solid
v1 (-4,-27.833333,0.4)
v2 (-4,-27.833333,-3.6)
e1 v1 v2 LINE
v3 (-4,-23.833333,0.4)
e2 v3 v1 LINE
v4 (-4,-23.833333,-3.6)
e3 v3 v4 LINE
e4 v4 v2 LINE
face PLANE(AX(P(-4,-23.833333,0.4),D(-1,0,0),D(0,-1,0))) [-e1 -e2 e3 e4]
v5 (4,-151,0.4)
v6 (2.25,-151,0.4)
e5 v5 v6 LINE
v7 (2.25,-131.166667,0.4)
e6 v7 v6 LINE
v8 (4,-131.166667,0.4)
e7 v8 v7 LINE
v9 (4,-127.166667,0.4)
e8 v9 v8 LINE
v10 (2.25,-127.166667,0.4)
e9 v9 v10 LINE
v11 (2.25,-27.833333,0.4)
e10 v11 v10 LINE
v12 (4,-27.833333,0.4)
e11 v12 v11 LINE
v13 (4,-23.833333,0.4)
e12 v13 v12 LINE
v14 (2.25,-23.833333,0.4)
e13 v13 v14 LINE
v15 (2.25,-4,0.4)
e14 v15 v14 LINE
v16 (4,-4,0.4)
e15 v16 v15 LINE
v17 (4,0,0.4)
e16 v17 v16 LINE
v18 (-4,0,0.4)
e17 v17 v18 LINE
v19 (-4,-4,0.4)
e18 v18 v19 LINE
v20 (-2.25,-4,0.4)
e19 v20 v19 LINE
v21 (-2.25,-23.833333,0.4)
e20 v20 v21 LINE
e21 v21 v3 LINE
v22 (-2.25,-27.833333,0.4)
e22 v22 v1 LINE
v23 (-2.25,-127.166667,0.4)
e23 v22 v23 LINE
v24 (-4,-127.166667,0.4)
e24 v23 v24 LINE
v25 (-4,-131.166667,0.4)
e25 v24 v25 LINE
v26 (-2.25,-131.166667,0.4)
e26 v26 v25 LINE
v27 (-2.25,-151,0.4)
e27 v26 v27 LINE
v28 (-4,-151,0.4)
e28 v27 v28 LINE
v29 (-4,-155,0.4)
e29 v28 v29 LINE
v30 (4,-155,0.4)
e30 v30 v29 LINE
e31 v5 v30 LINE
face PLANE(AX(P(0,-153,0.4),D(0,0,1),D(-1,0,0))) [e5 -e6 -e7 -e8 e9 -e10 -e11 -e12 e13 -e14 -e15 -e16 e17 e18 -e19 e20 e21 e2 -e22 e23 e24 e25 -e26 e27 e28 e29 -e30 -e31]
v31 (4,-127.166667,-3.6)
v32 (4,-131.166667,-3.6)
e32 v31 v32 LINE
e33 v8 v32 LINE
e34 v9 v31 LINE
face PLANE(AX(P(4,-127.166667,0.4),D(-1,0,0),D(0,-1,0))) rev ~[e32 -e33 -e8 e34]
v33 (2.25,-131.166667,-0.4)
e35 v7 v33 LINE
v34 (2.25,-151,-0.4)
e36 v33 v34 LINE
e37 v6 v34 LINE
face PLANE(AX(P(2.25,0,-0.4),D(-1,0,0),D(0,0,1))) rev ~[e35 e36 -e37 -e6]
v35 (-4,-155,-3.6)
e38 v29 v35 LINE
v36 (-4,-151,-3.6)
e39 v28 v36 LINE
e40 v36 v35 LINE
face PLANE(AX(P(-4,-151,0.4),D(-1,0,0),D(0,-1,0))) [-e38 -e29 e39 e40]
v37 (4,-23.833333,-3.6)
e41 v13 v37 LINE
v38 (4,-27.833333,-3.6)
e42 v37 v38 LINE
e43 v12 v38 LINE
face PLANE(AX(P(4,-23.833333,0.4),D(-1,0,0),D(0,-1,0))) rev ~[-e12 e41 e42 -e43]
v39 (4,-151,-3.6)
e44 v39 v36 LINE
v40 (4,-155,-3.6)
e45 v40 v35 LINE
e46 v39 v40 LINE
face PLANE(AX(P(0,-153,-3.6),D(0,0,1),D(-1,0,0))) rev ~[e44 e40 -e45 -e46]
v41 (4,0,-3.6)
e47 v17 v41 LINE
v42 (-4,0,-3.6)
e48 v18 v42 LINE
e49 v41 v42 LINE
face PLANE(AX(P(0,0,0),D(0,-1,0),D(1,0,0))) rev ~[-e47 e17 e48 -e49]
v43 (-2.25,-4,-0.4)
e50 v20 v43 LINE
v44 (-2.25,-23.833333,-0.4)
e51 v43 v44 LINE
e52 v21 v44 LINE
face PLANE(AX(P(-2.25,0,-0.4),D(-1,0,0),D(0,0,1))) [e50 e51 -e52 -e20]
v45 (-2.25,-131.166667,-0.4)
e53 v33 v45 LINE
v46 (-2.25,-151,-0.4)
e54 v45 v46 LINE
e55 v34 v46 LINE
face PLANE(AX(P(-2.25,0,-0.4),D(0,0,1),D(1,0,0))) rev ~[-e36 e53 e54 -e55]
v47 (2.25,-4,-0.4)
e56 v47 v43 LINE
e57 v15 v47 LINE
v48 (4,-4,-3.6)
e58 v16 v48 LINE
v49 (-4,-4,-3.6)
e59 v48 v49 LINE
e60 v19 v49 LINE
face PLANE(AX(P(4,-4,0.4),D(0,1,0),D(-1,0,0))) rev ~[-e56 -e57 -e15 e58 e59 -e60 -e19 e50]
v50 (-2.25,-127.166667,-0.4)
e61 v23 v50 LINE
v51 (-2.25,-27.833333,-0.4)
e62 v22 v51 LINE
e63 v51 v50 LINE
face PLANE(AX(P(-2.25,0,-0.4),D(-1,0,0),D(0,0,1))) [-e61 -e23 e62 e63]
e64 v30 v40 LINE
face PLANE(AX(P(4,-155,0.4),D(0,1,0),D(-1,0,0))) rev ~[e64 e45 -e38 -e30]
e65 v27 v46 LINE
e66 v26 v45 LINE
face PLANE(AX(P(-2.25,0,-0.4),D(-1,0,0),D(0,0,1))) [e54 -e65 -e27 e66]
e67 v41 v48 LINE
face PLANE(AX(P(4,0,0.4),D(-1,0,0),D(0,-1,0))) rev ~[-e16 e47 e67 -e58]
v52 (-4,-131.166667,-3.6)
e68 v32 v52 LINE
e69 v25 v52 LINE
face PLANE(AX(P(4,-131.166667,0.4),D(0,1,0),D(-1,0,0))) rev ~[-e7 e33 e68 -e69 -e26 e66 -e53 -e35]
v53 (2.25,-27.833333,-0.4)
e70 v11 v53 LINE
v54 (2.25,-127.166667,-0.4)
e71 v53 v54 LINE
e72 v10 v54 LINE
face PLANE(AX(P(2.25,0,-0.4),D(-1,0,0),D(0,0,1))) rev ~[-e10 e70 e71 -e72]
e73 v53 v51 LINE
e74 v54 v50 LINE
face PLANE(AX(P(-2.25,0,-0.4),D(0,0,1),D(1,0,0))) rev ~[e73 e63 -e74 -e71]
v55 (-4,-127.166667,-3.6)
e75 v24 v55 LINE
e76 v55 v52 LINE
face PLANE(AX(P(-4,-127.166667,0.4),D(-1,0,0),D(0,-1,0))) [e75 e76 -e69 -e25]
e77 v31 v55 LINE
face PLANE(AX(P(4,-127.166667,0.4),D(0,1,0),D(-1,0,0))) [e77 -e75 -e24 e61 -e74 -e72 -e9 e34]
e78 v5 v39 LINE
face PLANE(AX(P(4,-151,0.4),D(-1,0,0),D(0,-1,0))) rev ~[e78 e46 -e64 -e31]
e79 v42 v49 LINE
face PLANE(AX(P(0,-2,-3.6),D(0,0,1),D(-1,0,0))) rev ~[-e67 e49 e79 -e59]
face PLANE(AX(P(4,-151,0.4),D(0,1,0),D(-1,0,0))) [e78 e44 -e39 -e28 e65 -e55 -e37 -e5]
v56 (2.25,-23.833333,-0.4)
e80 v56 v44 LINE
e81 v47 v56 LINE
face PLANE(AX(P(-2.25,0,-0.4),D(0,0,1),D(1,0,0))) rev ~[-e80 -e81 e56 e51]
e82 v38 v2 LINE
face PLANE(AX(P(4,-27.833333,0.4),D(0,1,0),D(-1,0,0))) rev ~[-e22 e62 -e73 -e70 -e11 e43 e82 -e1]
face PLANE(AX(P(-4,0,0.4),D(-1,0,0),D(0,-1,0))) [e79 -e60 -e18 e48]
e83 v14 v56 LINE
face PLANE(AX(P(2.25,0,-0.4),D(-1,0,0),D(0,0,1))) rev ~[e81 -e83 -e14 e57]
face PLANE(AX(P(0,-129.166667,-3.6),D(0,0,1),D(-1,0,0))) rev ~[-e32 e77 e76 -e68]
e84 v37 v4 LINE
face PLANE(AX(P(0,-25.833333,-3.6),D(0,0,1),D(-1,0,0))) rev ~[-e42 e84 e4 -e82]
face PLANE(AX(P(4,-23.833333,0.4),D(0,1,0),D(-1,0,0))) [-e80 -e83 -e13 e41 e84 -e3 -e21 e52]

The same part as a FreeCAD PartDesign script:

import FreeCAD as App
import Part
import Sketcher
Q = App.Units.Quantity


def add_polygon(sketch, points):
    """Adds a closed chain of lines whose ends are joined by coincident constraints."""
    first, n = sketch.GeometryCount, len(points)
    for a, b in zip(points, points[1:] + points[:1]):
        sketch.addGeometry(Part.LineSegment(App.Vector(*a, 0), App.Vector(*b, 0)), False)
    for i in range(n):
        sketch.addConstraint(Sketcher.Constraint("Coincident", first + i, 2, first + (i + 1) % n, 1))

doc = App.newDocument("Part")
params = doc.addObject("Spreadsheet::Sheet", "Params")
for row, (alias, value) in enumerate([
    ("sketch1_width", "4.5 mm"),
    ("sketch1_height", "0.8 mm"),
    ("pad1_length", "155 mm"),
    ("sketch2_width", "8 mm"),
    ("sketch2_height", "4 mm"),
    ("pad2_length", "4 mm"),
], start=1):
    params.set(f"A{row}", alias)
    params.set(f"B{row}", "=" + value)
    params.setAlias(f"B{row}", alias)

body = doc.addObject("PartDesign::Body", "Body")

# Sketch on XZ plane
sketch1 = body.newObject("Sketcher::SketchObject", "Sketch")
sketch1.AttachmentSupport = (doc.getObject("XZ_Plane"), [""])
sketch1.MapMode = "FlatFace"
add_polygon(sketch1, [(-2.2, 0.4), (-2.2, -0.4), (2.2, -0.4), (2.2, 0.4)])  # lines 0-3
sketch1.addConstraint([
    Sketcher.Constraint("Vertical", 0),
    Sketcher.Constraint("Horizontal", 1),
    Sketcher.Constraint("Vertical", 2),
    Sketcher.Constraint("Horizontal", 3),
    Sketcher.Constraint("Symmetric", 0, 2, 2, 2, -1, 1),
    Sketcher.Constraint("DistanceX", 1, 1, 1, 2, Q("4.5 mm")),
    Sketcher.Constraint("DistanceY", 0, 2, 0, 1, Q("0.8 mm")),
])
sketch1.setExpression("Constraints[9]", "Params.sketch1_width")
sketch1.setExpression("Constraints[10]", "Params.sketch1_height")
pad1 = body.newObject("PartDesign::Pad", "Pad")
pad1.Profile = sketch1
pad1.setExpression("Length", "Params.pad1_length")

# Sketch on XY plane
sketch2 = body.newObject("Sketcher::SketchObject", "Sketch001")
sketch2.AttachmentSupport = (doc.getObject("XY_Plane"), [""])
sketch2.MapMode = "FlatFace"
sketch2.AttachmentOffset = App.Placement(App.Vector(0, 0, 0.4), App.Rotation())
add_polygon(sketch2, [(4, -155), (4, -151), (-4, -151), (-4, -155)])  # lines 0-3
add_polygon(sketch2, [(4, -131.2), (4, -127.2), (-4, -127.2), (-4, -131.2)])  # lines 4-7
add_polygon(sketch2, [(4, -27.8), (4, -23.8), (-4, -23.8), (-4, -27.8)])  # lines 8-11
add_polygon(sketch2, [(4, -4), (4, 0), (-4, 0), (-4, -4)])  # lines 12-15
sketch2.addConstraint([
    Sketcher.Constraint("Vertical", 0),
    Sketcher.Constraint("Horizontal", 1),
    Sketcher.Constraint("Vertical", 2),
    Sketcher.Constraint("Horizontal", 3),
    Sketcher.Constraint("Vertical", 4),
    Sketcher.Constraint("Horizontal", 5),
    Sketcher.Constraint("Vertical", 6),
    Sketcher.Constraint("Horizontal", 7),
    Sketcher.Constraint("Vertical", 8),
    Sketcher.Constraint("Horizontal", 9),
    Sketcher.Constraint("Vertical", 10),
    Sketcher.Constraint("Horizontal", 11),
    Sketcher.Constraint("Vertical", 12),
    Sketcher.Constraint("Horizontal", 13),
    Sketcher.Constraint("Vertical", 14),
    Sketcher.Constraint("Horizontal", 15),
    Sketcher.Constraint("Symmetric", 12, 2, 13, 2, -1, 1),
    Sketcher.Constraint("Vertical", 3, 2, 4, 2),
    Sketcher.Constraint("Vertical", 2, 2, 5, 2),
    Sketcher.Constraint("Vertical", 7, 2, 8, 2),
    Sketcher.Constraint("Vertical", 6, 2, 9, 2),
    Sketcher.Constraint("Vertical", 11, 2, 12, 2),
    Sketcher.Constraint("Vertical", 10, 2, 13, 2),
    Sketcher.Constraint("Equal", 2, 4),
    Sketcher.Constraint("Equal", 6, 8),
    Sketcher.Constraint("Equal", 10, 12),
    Sketcher.Constraint("DistanceX", 1, 2, 1, 1, Q("8 mm")),
    Sketcher.Constraint("DistanceY", 0, 1, 0, 2, Q("4 mm")),
    Sketcher.Constraint("DistanceY", 0, 2, -1, 1, Q("151 mm")),
    Sketcher.Constraint("DistanceY", 4, 2, -1, 1, Q("127.166667 mm")),
    Sketcher.Constraint("DistanceY", 8, 2, -1, 1, Q("23.833333 mm")),
])
sketch2.setExpression("Constraints[42]", "Params.sketch2_width")
sketch2.setExpression("Constraints[43]", "Params.sketch2_height")
pad2 = body.newObject("PartDesign::Pad", "Pad001")
pad2.Profile = sketch2
pad2.setExpression("Length", "Params.pad2_length")
pad2.Reversed = True

doc.recompute()
